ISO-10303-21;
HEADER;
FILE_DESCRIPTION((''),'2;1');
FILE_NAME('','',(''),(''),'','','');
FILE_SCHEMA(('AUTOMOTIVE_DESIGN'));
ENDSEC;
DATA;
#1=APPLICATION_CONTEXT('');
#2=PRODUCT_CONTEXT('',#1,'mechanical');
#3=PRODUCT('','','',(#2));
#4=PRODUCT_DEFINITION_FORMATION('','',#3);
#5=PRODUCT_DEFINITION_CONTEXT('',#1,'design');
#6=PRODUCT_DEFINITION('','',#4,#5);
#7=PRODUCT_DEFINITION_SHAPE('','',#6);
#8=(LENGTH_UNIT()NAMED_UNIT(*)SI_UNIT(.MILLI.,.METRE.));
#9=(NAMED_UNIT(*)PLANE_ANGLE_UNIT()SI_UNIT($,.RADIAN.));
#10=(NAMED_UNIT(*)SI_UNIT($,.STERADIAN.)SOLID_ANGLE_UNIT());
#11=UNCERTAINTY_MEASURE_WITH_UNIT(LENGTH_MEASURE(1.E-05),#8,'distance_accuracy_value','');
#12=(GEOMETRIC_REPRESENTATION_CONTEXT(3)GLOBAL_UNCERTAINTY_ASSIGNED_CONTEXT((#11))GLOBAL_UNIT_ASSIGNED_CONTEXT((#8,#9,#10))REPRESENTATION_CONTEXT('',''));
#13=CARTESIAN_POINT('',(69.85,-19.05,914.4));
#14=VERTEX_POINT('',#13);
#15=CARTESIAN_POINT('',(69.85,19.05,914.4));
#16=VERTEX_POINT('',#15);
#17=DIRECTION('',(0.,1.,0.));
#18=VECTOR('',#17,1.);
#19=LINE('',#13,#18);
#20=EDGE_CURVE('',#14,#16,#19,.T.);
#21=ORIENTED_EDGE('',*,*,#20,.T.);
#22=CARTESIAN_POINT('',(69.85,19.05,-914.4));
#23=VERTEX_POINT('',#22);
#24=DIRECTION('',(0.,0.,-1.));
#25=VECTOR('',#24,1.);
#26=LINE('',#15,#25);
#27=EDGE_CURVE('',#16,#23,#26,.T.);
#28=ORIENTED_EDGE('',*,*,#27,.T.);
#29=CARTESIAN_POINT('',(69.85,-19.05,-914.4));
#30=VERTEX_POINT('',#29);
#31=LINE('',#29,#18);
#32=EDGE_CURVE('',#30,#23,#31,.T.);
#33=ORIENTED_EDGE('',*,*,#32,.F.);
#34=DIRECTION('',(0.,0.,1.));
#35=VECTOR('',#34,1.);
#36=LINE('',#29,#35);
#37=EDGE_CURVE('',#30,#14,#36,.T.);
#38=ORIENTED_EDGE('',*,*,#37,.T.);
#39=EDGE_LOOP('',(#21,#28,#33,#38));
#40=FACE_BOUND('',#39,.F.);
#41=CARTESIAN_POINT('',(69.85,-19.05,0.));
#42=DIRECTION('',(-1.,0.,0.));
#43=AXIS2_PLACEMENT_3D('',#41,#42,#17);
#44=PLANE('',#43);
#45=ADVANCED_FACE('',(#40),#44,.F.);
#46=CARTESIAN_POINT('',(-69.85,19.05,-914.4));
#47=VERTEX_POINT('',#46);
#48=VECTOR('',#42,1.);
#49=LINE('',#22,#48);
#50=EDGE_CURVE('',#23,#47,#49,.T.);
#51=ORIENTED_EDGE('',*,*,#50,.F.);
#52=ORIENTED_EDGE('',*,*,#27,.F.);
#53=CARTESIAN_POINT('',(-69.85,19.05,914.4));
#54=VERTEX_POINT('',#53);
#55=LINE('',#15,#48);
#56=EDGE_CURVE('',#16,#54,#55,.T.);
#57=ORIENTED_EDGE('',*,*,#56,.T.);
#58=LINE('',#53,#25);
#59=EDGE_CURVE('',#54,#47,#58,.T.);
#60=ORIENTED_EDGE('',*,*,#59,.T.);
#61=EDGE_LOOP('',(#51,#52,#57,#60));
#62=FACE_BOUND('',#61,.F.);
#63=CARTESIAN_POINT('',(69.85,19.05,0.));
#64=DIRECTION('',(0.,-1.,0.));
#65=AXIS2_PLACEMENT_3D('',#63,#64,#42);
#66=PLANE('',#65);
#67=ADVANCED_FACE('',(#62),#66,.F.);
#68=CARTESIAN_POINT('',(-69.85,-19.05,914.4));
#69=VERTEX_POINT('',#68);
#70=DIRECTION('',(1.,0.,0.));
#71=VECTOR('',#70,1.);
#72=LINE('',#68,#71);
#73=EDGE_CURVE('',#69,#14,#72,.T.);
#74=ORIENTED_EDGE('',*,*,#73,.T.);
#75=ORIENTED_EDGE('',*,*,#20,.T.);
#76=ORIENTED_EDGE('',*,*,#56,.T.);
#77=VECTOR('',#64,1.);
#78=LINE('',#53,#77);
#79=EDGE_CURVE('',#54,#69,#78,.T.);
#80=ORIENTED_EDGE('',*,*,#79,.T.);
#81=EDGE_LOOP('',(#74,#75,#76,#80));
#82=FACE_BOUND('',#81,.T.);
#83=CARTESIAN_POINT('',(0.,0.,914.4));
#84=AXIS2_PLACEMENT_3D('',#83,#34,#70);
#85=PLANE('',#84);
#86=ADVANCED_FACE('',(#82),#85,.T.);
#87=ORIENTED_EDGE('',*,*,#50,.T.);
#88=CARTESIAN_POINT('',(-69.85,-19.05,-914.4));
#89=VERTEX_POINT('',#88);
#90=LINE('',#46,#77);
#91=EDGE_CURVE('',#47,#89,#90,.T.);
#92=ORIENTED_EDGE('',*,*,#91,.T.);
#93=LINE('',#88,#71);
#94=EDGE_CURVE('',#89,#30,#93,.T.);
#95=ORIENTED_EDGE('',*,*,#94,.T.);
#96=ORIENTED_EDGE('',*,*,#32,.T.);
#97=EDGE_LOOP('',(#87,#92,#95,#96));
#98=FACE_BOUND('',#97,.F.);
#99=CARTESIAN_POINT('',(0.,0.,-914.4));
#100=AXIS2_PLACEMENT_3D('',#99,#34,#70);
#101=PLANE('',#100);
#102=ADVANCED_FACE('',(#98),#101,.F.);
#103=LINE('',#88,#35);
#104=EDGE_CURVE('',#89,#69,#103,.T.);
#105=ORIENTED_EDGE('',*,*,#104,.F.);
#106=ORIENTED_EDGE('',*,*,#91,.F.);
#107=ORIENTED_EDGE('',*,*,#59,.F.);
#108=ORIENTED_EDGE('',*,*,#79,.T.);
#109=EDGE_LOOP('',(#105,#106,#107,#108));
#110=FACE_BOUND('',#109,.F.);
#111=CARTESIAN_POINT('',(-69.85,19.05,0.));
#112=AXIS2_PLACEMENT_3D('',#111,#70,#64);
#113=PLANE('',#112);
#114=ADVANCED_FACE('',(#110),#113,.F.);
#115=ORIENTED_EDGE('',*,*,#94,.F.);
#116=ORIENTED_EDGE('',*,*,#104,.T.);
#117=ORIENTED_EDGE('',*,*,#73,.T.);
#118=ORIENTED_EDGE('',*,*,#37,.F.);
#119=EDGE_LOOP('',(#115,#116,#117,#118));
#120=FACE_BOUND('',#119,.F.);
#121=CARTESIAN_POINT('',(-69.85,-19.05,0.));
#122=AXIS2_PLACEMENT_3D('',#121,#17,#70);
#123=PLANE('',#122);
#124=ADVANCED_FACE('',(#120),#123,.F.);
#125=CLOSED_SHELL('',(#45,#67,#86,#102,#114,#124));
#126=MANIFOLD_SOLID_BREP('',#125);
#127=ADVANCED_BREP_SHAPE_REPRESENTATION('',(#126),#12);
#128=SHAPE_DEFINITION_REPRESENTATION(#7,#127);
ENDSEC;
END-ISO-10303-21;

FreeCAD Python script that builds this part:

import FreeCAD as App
import Part
import Sketcher
Q = App.Units.Quantity


def add_polygon(sketch, points):
    """Adds a closed chain of lines whose ends are joined by coincident constraints."""
    first, n = sketch.GeometryCount, len(points)
    for a, b in zip(points, points[1:] + points[:1]):
        sketch.addGeometry(Part.LineSegment(App.Vector(*a, 0), App.Vector(*b, 0)), False)
    for i in range(n):
        sketch.addConstraint(Sketcher.Constraint("Coincident", first + i, 2, first + (i + 1) % n, 1))

doc = App.newDocument("Part")
body = doc.addObject("PartDesign::Body", "Body")

# Sketch on XY plane
sketch1 = body.newObject("Sketcher::SketchObject", "Sketch")
sketch1.AttachmentSupport = (doc.getObject("XY_Plane"), [""])
sketch1.MapMode = "FlatFace"
add_polygon(sketch1, [(-70, 19), (-70, -19), (70, -19), (70, 19)])  # lines 0-3
sketch1.addConstraint([
    Sketcher.Constraint("Vertical", 0),
    Sketcher.Constraint("Horizontal", 1),
    Sketcher.Constraint("Vertical", 2),
    Sketcher.Constraint("Horizontal", 3),
    Sketcher.Constraint("Symmetric", 0, 2, 2, 2, -1, 1),
    Sketcher.Constraint("DistanceX", 1, 1, 1, 2, Q("5.5 in")),
    Sketcher.Constraint("DistanceY", 0, 2, 0, 1, Q("1.5 in")),
])
pad1 = body.newObject("PartDesign::Pad", "Pad")
pad1.Profile = sketch1
pad1.Length = Q("72 in")
pad1.Midplane = True

doc.recompute()
